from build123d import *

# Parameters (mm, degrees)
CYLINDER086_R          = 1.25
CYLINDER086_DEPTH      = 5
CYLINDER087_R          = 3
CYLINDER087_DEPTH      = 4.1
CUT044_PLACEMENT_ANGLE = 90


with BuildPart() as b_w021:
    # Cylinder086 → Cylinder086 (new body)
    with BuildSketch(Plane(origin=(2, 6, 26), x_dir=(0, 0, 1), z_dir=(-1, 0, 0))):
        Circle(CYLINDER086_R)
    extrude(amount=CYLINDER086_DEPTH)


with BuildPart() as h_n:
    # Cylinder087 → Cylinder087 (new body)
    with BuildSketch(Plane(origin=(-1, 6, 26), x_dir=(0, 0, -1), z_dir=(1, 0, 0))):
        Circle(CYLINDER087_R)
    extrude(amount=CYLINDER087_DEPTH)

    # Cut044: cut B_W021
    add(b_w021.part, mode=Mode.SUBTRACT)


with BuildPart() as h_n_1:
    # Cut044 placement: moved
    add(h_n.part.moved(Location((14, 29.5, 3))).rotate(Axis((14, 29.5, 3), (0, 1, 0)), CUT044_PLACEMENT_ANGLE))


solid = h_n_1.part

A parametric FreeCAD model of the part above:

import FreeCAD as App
import Part
import Sketcher
Q = App.Units.Quantity

doc = App.newDocument("Part")
params = doc.addObject("Spreadsheet::Sheet", "Params")
for row, (alias, value) in enumerate([
    ("sketch1_diameter", "2.5 mm"),
    ("pad1_length", "5 mm"),
    ("sketch2_diameter", "6 mm"),
    ("pad2_length", "4.1 mm"),
], start=1):
    params.set(f"A{row}", alias)
    params.set(f"B{row}", "=" + value)
    params.setAlias(f"B{row}", alias)

body = doc.addObject("PartDesign::Body", "Body")

sketch1 = body.newObject("Sketcher::SketchObject", "Sketch")
sketch1.AttachmentSupport = (doc.getObject("YZ_Plane"), [""])
sketch1.MapMode = "FlatFace"
sketch1.AttachmentOffset = App.Placement(App.Vector(0, 0, 2), App.Rotation())
sketch1.addGeometry(Part.Circle(App.Vector(6, 26, 0), App.Vector(0, 0, 1), 1.2), False)
sketch1.addConstraint([
    Sketcher.Constraint("Diameter", 0, Q("2.5 mm")),
    Sketcher.Constraint("DistanceX", -1, 1, 0, 3, Q("6 mm")),
    Sketcher.Constraint("DistanceY", -1, 1, 0, 3, Q("26 mm")),
])
sketch1.setExpression("Constraints[0]", "Params.sketch1_diameter")
pad1 = body.newObject("PartDesign::Pad", "Pad")
pad1.Profile = sketch1
pad1.setExpression("Length", "Params.pad1_length")
pad1.Reversed = True
body2 = doc.addObject("PartDesign::Body", "Body001")

sketch2 = body2.newObject("Sketcher::SketchObject", "Sketch001")
sketch2.AttachmentSupport = (doc.getObject("YZ_Plane001"), [""])
sketch2.MapMode = "FlatFace"
sketch2.AttachmentOffset = App.Placement(App.Vector(0, 0, -1), App.Rotation())
sketch2.addGeometry(Part.Circle(App.Vector(6, 26, 0), App.Vector(0, 0, 1), 3), False)
sketch2.addConstraint([
    Sketcher.Constraint("Diameter", 0, Q("6 mm")),
    Sketcher.Constraint("DistanceX", -1, 1, 0, 3, Q("6 mm")),
    Sketcher.Constraint("DistanceY", -1, 1, 0, 3, Q("26 mm")),
])
sketch2.setExpression("Constraints[0]", "Params.sketch2_diameter")
pad2 = body2.newObject("PartDesign::Pad", "Pad001")
pad2.Profile = sketch2
pad2.setExpression("Length", "Params.pad2_length")
doc.recompute()

boolean = body2.newObject("PartDesign::Boolean", "Boolean")
boolean.Type = "Cut"
boolean.addObjects([body])
body3 = doc.addObject("PartDesign::Body", "Body002")
doc.recompute()

body2.Placement = App.Placement(App.Vector(14, 29.5, 3), App.Rotation(App.Vector(0, 1, 0), 90))
boolean2 = body3.newObject("PartDesign::Boolean", "Boolean001")
boolean2.Type = "Fuse"
boolean2.addObjects([body2])

doc.recompute()
